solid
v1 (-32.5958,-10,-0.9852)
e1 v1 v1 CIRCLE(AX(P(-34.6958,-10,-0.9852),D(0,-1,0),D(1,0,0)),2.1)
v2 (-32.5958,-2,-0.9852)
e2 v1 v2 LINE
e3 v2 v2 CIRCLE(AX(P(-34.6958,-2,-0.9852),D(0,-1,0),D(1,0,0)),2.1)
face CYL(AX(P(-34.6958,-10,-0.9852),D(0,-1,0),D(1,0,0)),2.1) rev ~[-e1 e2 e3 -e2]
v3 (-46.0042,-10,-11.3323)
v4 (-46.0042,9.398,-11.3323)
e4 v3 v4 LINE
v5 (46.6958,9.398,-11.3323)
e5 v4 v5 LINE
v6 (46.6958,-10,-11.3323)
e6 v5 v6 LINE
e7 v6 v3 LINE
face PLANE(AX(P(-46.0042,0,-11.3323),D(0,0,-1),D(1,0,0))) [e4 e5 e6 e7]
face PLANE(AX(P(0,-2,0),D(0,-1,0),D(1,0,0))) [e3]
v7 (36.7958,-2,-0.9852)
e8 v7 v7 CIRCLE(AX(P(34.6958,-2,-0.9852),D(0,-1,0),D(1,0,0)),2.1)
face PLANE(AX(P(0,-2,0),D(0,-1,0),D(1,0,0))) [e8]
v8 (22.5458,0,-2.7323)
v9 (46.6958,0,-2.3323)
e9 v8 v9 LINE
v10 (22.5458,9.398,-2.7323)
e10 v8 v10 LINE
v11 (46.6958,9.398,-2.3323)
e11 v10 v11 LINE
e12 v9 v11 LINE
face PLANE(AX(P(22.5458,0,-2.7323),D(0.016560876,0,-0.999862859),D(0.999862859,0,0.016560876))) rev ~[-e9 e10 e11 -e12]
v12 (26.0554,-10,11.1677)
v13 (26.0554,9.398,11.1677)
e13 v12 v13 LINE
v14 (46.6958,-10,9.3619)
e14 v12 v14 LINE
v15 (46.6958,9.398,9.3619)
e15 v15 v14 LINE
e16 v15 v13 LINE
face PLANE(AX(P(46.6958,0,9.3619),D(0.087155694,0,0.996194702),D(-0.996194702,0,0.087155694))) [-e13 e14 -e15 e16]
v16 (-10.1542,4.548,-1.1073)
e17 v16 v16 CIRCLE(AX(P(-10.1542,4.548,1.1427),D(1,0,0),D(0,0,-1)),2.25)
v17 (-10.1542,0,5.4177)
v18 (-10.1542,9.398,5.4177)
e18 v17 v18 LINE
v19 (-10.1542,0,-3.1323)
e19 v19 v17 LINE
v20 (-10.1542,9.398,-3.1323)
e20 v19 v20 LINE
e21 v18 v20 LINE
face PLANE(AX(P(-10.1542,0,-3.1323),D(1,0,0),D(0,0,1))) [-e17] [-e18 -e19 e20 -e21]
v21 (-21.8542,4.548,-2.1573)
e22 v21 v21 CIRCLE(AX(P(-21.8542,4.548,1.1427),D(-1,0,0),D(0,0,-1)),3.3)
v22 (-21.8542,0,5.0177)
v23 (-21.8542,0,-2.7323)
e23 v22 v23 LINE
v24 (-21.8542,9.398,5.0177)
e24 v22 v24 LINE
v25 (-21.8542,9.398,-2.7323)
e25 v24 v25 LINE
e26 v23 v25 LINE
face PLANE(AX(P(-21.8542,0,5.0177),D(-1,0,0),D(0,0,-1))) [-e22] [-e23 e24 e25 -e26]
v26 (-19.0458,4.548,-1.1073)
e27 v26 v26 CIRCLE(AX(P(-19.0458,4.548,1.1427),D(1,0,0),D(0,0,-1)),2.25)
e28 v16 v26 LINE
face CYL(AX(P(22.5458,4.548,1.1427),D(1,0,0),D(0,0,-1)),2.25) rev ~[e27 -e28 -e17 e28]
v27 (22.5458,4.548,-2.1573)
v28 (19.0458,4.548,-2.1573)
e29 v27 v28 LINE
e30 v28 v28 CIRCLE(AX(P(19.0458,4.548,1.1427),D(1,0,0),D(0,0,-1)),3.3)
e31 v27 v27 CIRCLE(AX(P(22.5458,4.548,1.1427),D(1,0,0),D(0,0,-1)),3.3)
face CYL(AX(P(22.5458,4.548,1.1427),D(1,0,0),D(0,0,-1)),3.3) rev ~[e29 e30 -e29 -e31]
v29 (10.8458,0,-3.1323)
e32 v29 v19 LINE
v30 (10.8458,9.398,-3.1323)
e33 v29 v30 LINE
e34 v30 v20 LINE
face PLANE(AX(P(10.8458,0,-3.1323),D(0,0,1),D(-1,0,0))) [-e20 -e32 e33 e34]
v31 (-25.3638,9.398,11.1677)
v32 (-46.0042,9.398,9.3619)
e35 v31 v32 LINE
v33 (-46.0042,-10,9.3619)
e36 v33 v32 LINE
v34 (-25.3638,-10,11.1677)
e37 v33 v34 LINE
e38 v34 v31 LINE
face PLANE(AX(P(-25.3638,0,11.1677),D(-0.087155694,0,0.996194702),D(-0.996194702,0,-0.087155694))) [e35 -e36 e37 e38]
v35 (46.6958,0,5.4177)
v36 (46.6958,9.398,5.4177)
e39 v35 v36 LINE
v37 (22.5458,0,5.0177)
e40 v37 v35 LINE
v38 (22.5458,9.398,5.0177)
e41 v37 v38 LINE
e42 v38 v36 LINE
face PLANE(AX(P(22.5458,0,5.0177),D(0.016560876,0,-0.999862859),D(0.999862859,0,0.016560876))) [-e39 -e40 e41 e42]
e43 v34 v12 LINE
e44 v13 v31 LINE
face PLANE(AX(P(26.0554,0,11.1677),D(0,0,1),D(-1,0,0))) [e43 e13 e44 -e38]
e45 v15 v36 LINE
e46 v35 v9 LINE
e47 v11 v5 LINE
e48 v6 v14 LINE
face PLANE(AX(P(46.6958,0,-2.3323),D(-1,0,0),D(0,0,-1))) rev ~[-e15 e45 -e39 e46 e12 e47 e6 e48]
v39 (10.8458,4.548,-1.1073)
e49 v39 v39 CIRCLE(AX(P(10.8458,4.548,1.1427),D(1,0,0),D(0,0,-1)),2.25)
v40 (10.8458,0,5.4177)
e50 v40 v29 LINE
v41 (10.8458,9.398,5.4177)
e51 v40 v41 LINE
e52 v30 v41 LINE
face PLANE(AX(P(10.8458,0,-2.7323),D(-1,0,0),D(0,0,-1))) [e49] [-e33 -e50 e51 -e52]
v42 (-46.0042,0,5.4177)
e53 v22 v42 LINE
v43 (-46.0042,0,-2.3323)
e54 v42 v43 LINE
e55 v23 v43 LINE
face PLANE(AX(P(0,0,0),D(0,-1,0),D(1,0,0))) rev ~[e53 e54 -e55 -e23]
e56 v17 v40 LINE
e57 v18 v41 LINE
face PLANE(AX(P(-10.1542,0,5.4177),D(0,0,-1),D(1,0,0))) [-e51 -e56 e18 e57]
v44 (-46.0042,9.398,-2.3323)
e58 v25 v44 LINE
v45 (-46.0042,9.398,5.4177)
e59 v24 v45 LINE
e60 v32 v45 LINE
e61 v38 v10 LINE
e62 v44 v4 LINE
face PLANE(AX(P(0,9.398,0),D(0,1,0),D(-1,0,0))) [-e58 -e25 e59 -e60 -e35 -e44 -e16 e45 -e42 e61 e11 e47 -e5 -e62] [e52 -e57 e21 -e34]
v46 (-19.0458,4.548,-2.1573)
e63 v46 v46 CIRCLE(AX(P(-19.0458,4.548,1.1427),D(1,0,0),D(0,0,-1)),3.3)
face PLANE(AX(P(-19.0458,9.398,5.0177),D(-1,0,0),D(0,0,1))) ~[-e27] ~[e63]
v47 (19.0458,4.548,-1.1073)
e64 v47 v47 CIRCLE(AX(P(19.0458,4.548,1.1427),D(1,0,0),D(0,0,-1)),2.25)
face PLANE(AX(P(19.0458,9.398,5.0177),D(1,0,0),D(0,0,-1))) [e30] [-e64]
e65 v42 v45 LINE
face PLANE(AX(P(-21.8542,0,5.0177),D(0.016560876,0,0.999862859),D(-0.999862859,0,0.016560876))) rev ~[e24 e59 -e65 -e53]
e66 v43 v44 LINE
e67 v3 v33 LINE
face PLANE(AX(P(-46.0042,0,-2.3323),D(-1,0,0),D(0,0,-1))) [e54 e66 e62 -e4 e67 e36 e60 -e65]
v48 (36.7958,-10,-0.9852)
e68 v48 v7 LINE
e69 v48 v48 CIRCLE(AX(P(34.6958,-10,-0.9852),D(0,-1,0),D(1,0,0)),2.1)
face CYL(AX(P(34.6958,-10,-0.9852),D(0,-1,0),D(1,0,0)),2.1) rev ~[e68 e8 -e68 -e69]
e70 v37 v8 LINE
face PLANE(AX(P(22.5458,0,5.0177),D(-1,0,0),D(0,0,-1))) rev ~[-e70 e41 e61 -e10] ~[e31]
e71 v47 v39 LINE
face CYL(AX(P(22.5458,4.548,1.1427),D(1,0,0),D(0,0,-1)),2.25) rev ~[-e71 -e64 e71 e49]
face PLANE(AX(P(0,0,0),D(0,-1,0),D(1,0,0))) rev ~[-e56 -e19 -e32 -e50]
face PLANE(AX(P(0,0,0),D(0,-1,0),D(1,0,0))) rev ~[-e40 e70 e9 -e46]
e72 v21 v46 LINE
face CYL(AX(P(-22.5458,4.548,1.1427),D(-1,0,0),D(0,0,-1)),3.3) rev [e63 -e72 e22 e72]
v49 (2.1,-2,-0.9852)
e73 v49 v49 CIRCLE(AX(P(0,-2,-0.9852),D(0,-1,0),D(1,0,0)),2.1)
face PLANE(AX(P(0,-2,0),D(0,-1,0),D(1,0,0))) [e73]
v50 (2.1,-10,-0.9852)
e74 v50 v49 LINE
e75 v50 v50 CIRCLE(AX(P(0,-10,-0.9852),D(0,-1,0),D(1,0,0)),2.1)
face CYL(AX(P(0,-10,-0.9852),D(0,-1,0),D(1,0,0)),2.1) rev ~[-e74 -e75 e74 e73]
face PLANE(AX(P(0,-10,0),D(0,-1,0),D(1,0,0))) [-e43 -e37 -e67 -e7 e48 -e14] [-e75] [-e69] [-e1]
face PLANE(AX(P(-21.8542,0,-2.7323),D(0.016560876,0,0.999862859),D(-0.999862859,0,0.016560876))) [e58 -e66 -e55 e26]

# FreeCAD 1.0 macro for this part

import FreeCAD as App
import Part
import Sketcher

V = App.Vector
Q = App.Units.Quantity

doc = App.newDocument("Part")
body = doc.addObject("PartDesign::Body", "Body")

# Sketch on XZ plane
sketch1 = body.newObject("Sketcher::SketchObject", "Sketch")
sketch1.AttachmentSupport = (doc.getObject("XZ_Plane"), [""])
sketch1.MapMode = "FlatFace"
sketch1.addGeometry([
    Part.LineSegment(V(46.7, -11.3, 0), V(-46, -11.3, 0)),  # 0
    Part.LineSegment(V(-46, -11.3, 0), V(-46, -2.3, 0)),  # 1
    Part.LineSegment(V(-46, -2.3, 0), V(-21.9, -2.7, 0)),  # 2
    Part.LineSegment(V(-21.9, -2.7, 0), V(-21.9, 5, 0)),  # 3
    Part.LineSegment(V(-21.9, 5, 0), V(-46, 5.4, 0)),  # 4
    Part.LineSegment(V(-46, 5.4, 0), V(-46, 9.4, 0)),  # 5
    Part.LineSegment(V(-46, 9.4, 0), V(-25.4, 11.2, 0)),  # 6
    Part.LineSegment(V(-25.4, 11.2, 0), V(26.1, 11.2, 0)),  # 7
    Part.LineSegment(V(26.1, 11.2, 0), V(46.7, 9.4, 0)),  # 8
    Part.LineSegment(V(46.7, 9.4, 0), V(46.7, 5.4, 0)),  # 9
    Part.LineSegment(V(46.7, 5.4, 0), V(22.5, 5, 0)),  # 10
    Part.LineSegment(V(22.5, 5, 0), V(22.5, -2.7, 0)),  # 11
    Part.LineSegment(V(22.5, -2.7, 0), V(46.7, -2.3, 0)),  # 12
    Part.LineSegment(V(46.7, -2.3, 0), V(46.7, -11.3, 0)),  # 13
    Part.LineSegment(V(10.8, -3.1, 0), V(10.8, 5.4, 0)),  # 14
    Part.LineSegment(V(10.8, 5.4, 0), V(-10.2, 5.4, 0)),  # 15
    Part.LineSegment(V(-10.2, 5.4, 0), V(-10.2, -3.1, 0)),  # 16
    Part.LineSegment(V(-10.2, -3.1, 0), V(10.8, -3.1, 0)),  # 17
], False)
sketch1.addConstraint([
    Sketcher.Constraint("Coincident", 0, 2, 1, 1),
    Sketcher.Constraint("Coincident", 1, 2, 2, 1),
    Sketcher.Constraint("Coincident", 2, 2, 3, 1),
    Sketcher.Constraint("Coincident", 3, 2, 4, 1),
    Sketcher.Constraint("Coincident", 4, 2, 5, 1),
    Sketcher.Constraint("Coincident", 5, 2, 6, 1),
    Sketcher.Constraint("Coincident", 6, 2, 7, 1),
    Sketcher.Constraint("Coincident", 7, 2, 8, 1),
    Sketcher.Constraint("Coincident", 8, 2, 9, 1),
    Sketcher.Constraint("Coincident", 9, 2, 10, 1),
    Sketcher.Constraint("Coincident", 10, 2, 11, 1),
    Sketcher.Constraint("Coincident", 11, 2, 12, 1),
    Sketcher.Constraint("Coincident", 12, 2, 13, 1),
    Sketcher.Constraint("Coincident", 13, 2, 0, 1),
    Sketcher.Constraint("Coincident", 14, 2, 15, 1),
    Sketcher.Constraint("Coincident", 15, 2, 16, 1),
    Sketcher.Constraint("Coincident", 16, 2, 17, 1),
    Sketcher.Constraint("Coincident", 17, 2, 14, 1),
    Sketcher.Constraint("Horizontal", 0),
    Sketcher.Constraint("Vertical", 1),
    Sketcher.Constraint("Vertical", 3),
    Sketcher.Constraint("Vertical", 5),
    Sketcher.Constraint("Horizontal", 7),
    Sketcher.Constraint("Vertical", 9),
    Sketcher.Constraint("Vertical", 11),
    Sketcher.Constraint("Vertical", 13),
    Sketcher.Constraint("Vertical", 14),
    Sketcher.Constraint("Horizontal", 15),
    Sketcher.Constraint("Vertical", 16),
    Sketcher.Constraint("Horizontal", 17),
    Sketcher.Constraint("Parallel", 2, 4),
    Sketcher.Constraint("Parallel", 10, 12),
    Sketcher.Constraint("Horizontal", 5, 2, 8, 2),
    Sketcher.Constraint("Horizontal", 4, 2, 9, 2),
    Sketcher.Constraint("Horizontal", 3, 2, 10, 2),
    Sketcher.Constraint("Horizontal", 2, 2, 11, 2),
    Sketcher.Constraint("Horizontal", 1, 2, 12, 2),
    Sketcher.Constraint("Horizontal", 9, 2, 14, 2),
    Sketcher.Constraint("Vertical", 1, 2, 4, 2),
    Sketcher.Constraint("Equal", 6, 8),
    Sketcher.Constraint("Equal", 4, 10),
    Sketcher.Constraint("DistanceY", 2, 2, 1, 2, 0.4),
    Sketcher.Constraint("DistanceX", 14, 2, 10, 2, 11.7),
    Sketcher.Constraint("DistanceX", 3, 2, 15, 2, 11.7),
    Sketcher.Constraint("DistanceY", 16, 2, 2, 2, 0.4),
    Sketcher.Constraint("DistanceX", 15, 2, 15, 1, 21.0),
    Sketcher.Constraint("DistanceY", 1, 1, 1, 2, 9.0),
    Sketcher.Constraint("Angle", 6, Q("5 deg")),
    Sketcher.Constraint("DistanceX", 0, 2, 0, 1, 92.7),
    Sketcher.Constraint("DistanceY", 3, 1, 3, 2, 7.75),
    Sketcher.Constraint("DistanceY", 2, 2, 6, 2, 13.9),
    Sketcher.Constraint("DistanceX", 7, 1, 7, 2, 51.4192),
    Sketcher.Constraint("DistanceY", -1, 1, 5, 2, 9.362),
    Sketcher.Constraint("DistanceX", 0, 2, -1, 1, 46.0042),
])
pad1 = body.newObject("PartDesign::Pad", "Pad")
pad1.Profile = sketch1
pad1.Length = 9.398
pad1.Reversed = True

# Sketch on XZ plane
sketch2 = body.newObject("Sketcher::SketchObject", "Sketch001")
sketch2.AttachmentSupport = (doc.getObject("XZ_Plane"), [""])
sketch2.MapMode = "FlatFace"
sketch2.addGeometry([
    Part.LineSegment(V(-46, -11, 0), V(47, -11, 0)),  # 0
    Part.LineSegment(V(47, -11, 0), V(47, 9, 0)),  # 1
    Part.LineSegment(V(47, 9, 0), V(26, 11, 0)),  # 2
    Part.LineSegment(V(26, 11, 0), V(-25, 11, 0)),  # 3
    Part.LineSegment(V(-25, 11, 0), V(-46, 9, 0)),  # 4
    Part.LineSegment(V(-46, 9, 0), V(-46, -11, 0)),  # 5
], False)
sketch2.addConstraint([
    Sketcher.Constraint("Coincident", 0, 2, 1, 1),
    Sketcher.Constraint("Coincident", 1, 2, 2, 1),
    Sketcher.Constraint("Coincident", 2, 2, 3, 1),
    Sketcher.Constraint("Coincident", 3, 2, 4, 1),
    Sketcher.Constraint("Coincident", 4, 2, 5, 1),
    Sketcher.Constraint("Coincident", 5, 2, 0, 1),
    Sketcher.Constraint("Horizontal", 0),
    Sketcher.Constraint("Vertical", 1),
    Sketcher.Constraint("Horizontal", 3),
    Sketcher.Constraint("Vertical", 5),
    Sketcher.Constraint("Horizontal", 1, 2, 4, 2),
    Sketcher.Constraint("Equal", 2, 4),
    Sketcher.Constraint("Angle", 2, Q("175 deg")),
    Sketcher.Constraint("DistanceX", 0, 1, 0, 2, 92.7),
    Sketcher.Constraint("DistanceY", 0, 2, 2, 2, 22.5),
    Sketcher.Constraint("DistanceX", 3, 2, 3, 1, 51.4192),
    Sketcher.Constraint("DistanceY", -1, 1, 1, 2, 9.362),
    Sketcher.Constraint("DistanceX", -1, 1, 0, 2, 46.6958),
])
pad2 = body.newObject("PartDesign::Pad", "Pad001")
pad2.Profile = sketch2
pad2.Length = 10

# Sketch on XZ plane
sketch3 = body.newObject("Sketcher::SketchObject", "Sketch002")
sketch3.AttachmentSupport = (doc.getObject("XZ_Plane"), [""])
sketch3.MapMode = "FlatFace"
sketch3.AttachmentOffset = App.Placement(V(0, 0, 10), App.Rotation())
sketch3.addGeometry([
    Part.Circle(V(34.7, -1, 0), V(0, 0, 1), 2.1),
    Part.Circle(V(-34.7, -1, 0), V(0, 0, 1), 2.1),
    Part.Circle(V(0, -1, 0), V(0, 0, 1), 2.1),
], False)
sketch3.addConstraint([
    Sketcher.Constraint("Equal", 0, 1),
    Sketcher.Constraint("Equal", 1, 2),
    Sketcher.Constraint("Symmetric", 0, 3, 1, 3, -2),
    Sketcher.Constraint("PointOnObject", 2, 3, -2),
    Sketcher.Constraint("Horizontal", 1, 3, 2, 3),
    Sketcher.Constraint("Diameter", 0, 4.2),
    Sketcher.Constraint("DistanceX", -1, 1, 0, 3, 34.6958),
    Sketcher.Constraint("DistanceY", 0, 3, -1, 1, 0.9852),
])
pocket1 = body.newObject("PartDesign::Pocket", "Pocket")
pocket1.Profile = sketch3
pocket1.Length = 8

# Sketch on YZ plane
sketch4 = body.newObject("Sketcher::SketchObject", "Sketch003")
sketch4.AttachmentSupport = (doc.getObject("YZ_Plane"), [""])
sketch4.MapMode = "FlatFace"
sketch4.AttachmentOffset = App.Placement(V(0, 0, 22.5458), App.Rotation())
sketch4.addGeometry(Part.Circle(V(4.5, 1.1, 0), V(0, 0, 1), 2.2), False)
sketch4.addConstraint([
    Sketcher.Constraint("Diameter", 0, 4.5),
    Sketcher.Constraint("DistanceX", -1, 1, 0, 3, 4.548),
    Sketcher.Constraint("DistanceY", -1, 1, 0, 3, 1.1427),
])
pocket2 = body.newObject("PartDesign::Pocket", "Pocket001")
pocket2.Profile = sketch4
pocket2.Type = "ThroughAll"
pocket2.Midplane = True

# Sketch on YZ plane
sketch5 = body.newObject("Sketcher::SketchObject", "Sketch004")
sketch5.AttachmentSupport = (doc.getObject("YZ_Plane"), [""])
sketch5.MapMode = "FlatFace"
sketch5.AttachmentOffset = App.Placement(V(0, 0, 22.5458), App.Rotation())
sketch5.addGeometry(Part.Circle(V(4.5, 1.1, 0), V(0, 0, 1), 3.3), False)
sketch5.addConstraint([
    Sketcher.Constraint("Diameter", 0, 6.6),
    Sketcher.Constraint("DistanceX", -1, 1, 0, 3, 4.548),
    Sketcher.Constraint("DistanceY", -1, 1, 0, 3, 1.1427),
])
pocket3 = body.newObject("PartDesign::Pocket", "Pocket002")
pocket3.Profile = sketch5
pocket3.Length = 3.5
doc.recompute()

mirrored = body.newObject("PartDesign::Mirrored", "Mirrored")
mirrored.Originals = [pocket3]
mirrored.MirrorPlane = (doc.getObject("YZ_Plane"), [""])
body.Tip = mirrored

doc.recompute()
